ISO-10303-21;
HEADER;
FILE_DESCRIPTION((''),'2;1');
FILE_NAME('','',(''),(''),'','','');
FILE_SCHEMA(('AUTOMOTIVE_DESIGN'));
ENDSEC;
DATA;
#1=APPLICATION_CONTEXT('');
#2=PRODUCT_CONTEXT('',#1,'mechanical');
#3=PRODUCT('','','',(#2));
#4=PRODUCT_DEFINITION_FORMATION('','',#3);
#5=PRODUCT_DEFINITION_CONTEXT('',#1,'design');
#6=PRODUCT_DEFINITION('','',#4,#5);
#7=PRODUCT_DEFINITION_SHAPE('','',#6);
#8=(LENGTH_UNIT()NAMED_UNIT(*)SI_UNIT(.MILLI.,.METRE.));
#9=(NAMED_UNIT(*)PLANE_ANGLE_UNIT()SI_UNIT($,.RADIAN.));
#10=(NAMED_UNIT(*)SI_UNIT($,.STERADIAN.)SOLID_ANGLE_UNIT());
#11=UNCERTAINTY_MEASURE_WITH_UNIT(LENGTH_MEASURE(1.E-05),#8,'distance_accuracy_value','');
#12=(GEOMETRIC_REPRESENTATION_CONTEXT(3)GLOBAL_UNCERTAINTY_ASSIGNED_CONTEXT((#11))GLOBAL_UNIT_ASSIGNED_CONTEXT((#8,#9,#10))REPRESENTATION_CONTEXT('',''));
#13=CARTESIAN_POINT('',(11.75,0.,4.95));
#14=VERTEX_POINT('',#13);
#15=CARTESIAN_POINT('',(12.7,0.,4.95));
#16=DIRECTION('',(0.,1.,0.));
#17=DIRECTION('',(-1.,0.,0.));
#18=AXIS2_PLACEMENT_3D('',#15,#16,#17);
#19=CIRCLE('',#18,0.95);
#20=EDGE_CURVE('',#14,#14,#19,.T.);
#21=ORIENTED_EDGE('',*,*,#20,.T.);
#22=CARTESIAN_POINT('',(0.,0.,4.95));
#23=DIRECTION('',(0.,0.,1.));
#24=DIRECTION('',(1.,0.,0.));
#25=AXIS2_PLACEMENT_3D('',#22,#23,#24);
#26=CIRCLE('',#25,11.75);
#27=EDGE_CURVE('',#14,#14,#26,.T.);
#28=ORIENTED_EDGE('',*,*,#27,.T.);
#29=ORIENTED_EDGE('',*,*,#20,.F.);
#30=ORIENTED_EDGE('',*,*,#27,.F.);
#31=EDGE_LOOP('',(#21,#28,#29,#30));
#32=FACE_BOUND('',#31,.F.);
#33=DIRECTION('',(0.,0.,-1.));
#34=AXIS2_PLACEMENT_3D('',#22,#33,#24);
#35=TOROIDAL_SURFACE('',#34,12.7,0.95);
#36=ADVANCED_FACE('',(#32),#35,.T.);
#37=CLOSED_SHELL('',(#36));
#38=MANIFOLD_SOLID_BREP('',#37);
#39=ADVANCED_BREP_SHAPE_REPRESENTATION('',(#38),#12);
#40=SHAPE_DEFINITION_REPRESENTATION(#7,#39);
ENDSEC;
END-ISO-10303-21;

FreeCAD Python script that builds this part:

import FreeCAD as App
import Part
import Sketcher
from FreeCAD import Vector
Q = App.Units.Quantity

doc = App.newDocument("Part")
params = doc.addObject("Spreadsheet::Sheet", "Params")
for row, (alias, value) in enumerate([
    ("sketch1_diameter", "1.9 mm"),
    ("revolution_angle", "360 deg"),
], start=1):
    params.set(f"A{row}", alias)
    params.set(f"B{row}", "=" + value)
    params.setAlias(f"B{row}", alias)

body = doc.addObject("PartDesign::Body", "Body")

sketch1 = doc.addObject("Sketcher::SketchObject", "Sketch")
body.addObject(sketch1)
sketch1.AttachmentSupport = (doc.XZ_Plane, [""])
sketch1.MapMode = "FlatFace"
sketch1.addGeometry(Part.Circle(Vector(12.7, 5, 0), Vector(0, 0, 1), 0.9), False)
sketch1.addConstraint([
    Sketcher.Constraint("Diameter", 0, Q("1.9 mm")),
    Sketcher.Constraint("DistanceX", -1, 1, 0, 3, Q("12.7 mm")),
    Sketcher.Constraint("DistanceY", -1, 1, 0, 3, Q("4.95 mm")),
])
sketch1.setExpression("Constraints[0]", "Params.sketch1_diameter")
revolution = doc.addObject("PartDesign::Revolution", "Revolution")
body.addObject(revolution)
revolution.Profile = sketch1
revolution.ReferenceAxis = (sketch1, ["V_Axis"])
revolution.setExpression("Angle", "Params.revolution_angle")

doc.recompute()
